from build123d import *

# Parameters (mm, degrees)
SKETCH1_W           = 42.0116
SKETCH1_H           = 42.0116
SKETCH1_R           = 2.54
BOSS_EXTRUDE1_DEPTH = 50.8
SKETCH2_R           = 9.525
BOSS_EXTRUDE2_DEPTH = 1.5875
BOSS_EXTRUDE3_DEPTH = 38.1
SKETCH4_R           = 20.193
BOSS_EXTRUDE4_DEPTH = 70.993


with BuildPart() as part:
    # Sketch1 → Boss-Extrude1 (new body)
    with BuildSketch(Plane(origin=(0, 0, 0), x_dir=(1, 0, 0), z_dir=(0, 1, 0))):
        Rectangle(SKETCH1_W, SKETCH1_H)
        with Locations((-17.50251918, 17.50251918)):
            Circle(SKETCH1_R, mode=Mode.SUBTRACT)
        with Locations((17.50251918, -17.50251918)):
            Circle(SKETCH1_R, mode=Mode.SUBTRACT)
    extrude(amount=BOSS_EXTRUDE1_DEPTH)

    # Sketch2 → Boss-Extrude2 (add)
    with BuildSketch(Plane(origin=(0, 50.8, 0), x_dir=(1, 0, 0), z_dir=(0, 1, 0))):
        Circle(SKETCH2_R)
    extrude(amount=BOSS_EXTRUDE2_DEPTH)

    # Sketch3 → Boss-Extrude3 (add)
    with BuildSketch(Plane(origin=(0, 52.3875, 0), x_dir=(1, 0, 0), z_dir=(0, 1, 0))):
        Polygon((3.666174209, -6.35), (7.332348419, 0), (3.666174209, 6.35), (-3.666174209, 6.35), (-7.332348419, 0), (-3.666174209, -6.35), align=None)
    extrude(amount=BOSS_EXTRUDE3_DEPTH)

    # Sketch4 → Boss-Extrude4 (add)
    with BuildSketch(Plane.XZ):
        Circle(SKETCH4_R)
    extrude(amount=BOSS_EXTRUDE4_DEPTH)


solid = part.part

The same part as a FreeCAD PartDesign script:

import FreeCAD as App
import Part
import Sketcher
from FreeCAD import Vector
Q = App.Units.Quantity

doc = App.newDocument("Part")
body = doc.addObject("PartDesign::Body", "Body")

sketch1 = body.newObject("Sketcher::SketchObject", "Sketch")
sketch1.AttachmentSupport = (doc.getObject("XZ_Plane"), [""])
sketch1.MapMode = "FlatFace"
sketch1.addGeometry(Part.LineSegment(Vector(-21, -21, 0), Vector(-21, 21, 0)), False)
sketch1.addGeometry(Part.LineSegment(Vector(-21, 21, 0), Vector(21, 21, 0)), False)
sketch1.addGeometry(Part.LineSegment(Vector(21, 21, 0), Vector(21, -21, 0)), False)
sketch1.addGeometry(Part.LineSegment(Vector(21, -21, 0), Vector(-21, -21, 0)), False)
sketch1.addGeometry(Part.Circle(Vector(17.5, 17.5, 0), Vector(0, 0, 1), 2.5), False)
sketch1.addGeometry(Part.Circle(Vector(-17.5, -17.5, 0), Vector(0, 0, 1), 2.5), False)
sketch1.addConstraint(Sketcher.Constraint("Coincident", 0, 2, 1, 1))
sketch1.addConstraint(Sketcher.Constraint("Coincident", 1, 2, 2, 1))
sketch1.addConstraint(Sketcher.Constraint("Coincident", 2, 2, 3, 1))
sketch1.addConstraint(Sketcher.Constraint("Coincident", 3, 2, 0, 1))
sketch1.addConstraint(Sketcher.Constraint("Vertical", 0))
sketch1.addConstraint(Sketcher.Constraint("Horizontal", 1))
sketch1.addConstraint(Sketcher.Constraint("Vertical", 2))
sketch1.addConstraint(Sketcher.Constraint("Horizontal", 3))
sketch1.addConstraint(Sketcher.Constraint("Equal", 4, 5))
sketch1.addConstraint(Sketcher.Constraint("Symmetric", 4, 3, 5, 3, -1, 1))
sketch1.addConstraint(Sketcher.Constraint("Symmetric", 0, 2, 2, 2, -1, 1))
sketch1.addConstraint(Sketcher.Constraint("Equal", 3, 0))
sketch1.addConstraint(Sketcher.Constraint("Diameter", 4, Q("0.2 in")))
sketch1.addConstraint(Sketcher.Constraint("DistanceX", 1, 1, 1, 2, Q("1.654 in")))
sketch1.addConstraint(Sketcher.Constraint("DistanceX", -1, 1, 4, 3, Q("17.502519 mm")))
sketch1.addConstraint(Sketcher.Constraint("DistanceY", -1, 1, 4, 3, Q("17.502519 mm")))
pad1 = body.newObject("PartDesign::Pad", "Pad")
pad1.Profile = sketch1
pad1.Length = Q("2 in")
pad1.Reversed = True

sketch2 = body.newObject("Sketcher::SketchObject", "Sketch001")
sketch2.AttachmentSupport = (doc.getObject("XZ_Plane"), [""])
sketch2.MapMode = "FlatFace"
sketch2.AttachmentOffset = App.Placement(Vector(0, 0, -2 * 25.4), App.Rotation())
sketch2.addGeometry(Part.Circle(Vector(0, 0, 0), Vector(0, 0, 1), 10), False)
sketch2.addConstraint(Sketcher.Constraint("Coincident", 0, 3, -1, 1))
sketch2.addConstraint(Sketcher.Constraint("Diameter", 0, Q("0.75 in")))
pad2 = body.newObject("PartDesign::Pad", "Pad001")
pad2.Profile = sketch2
pad2.Length = Q("0.0625 in")
pad2.Reversed = True

sketch3 = body.newObject("Sketcher::SketchObject", "Sketch002")
sketch3.AttachmentSupport = (doc.getObject("XZ_Plane"), [""])
sketch3.MapMode = "FlatFace"
sketch3.AttachmentOffset = App.Placement(Vector(0, 0, -2.0625 * 25.4), App.Rotation())
sketch3.addGeometry(Part.LineSegment(Vector(4, 6, 0), Vector(7, 0, 0)), False)
sketch3.addGeometry(Part.LineSegment(Vector(7, 0, 0), Vector(4, -6, 0)), False)
sketch3.addGeometry(Part.LineSegment(Vector(4, -6, 0), Vector(-4, -6, 0)), False)
sketch3.addGeometry(Part.LineSegment(Vector(-4, -6, 0), Vector(-7, 0, 0)), False)
sketch3.addGeometry(Part.LineSegment(Vector(-7, 0, 0), Vector(-4, 6, 0)), False)
sketch3.addGeometry(Part.LineSegment(Vector(-4, 6, 0), Vector(4, 6, 0)), False)
sketch3.addConstraint(Sketcher.Constraint("Coincident", 0, 2, 1, 1))
sketch3.addConstraint(Sketcher.Constraint("Coincident", 1, 2, 2, 1))
sketch3.addConstraint(Sketcher.Constraint("Coincident", 2, 2, 3, 1))
sketch3.addConstraint(Sketcher.Constraint("Coincident", 3, 2, 4, 1))
sketch3.addConstraint(Sketcher.Constraint("Coincident", 4, 2, 5, 1))
sketch3.addConstraint(Sketcher.Constraint("Coincident", 5, 2, 0, 1))
sketch3.addConstraint(Sketcher.Constraint("Horizontal", 2))
sketch3.addConstraint(Sketcher.Constraint("Horizontal", 5))
sketch3.addConstraint(Sketcher.Constraint("Symmetric", 0, 2, 3, 2, -1, 1))
sketch3.addConstraint(Sketcher.Constraint("Symmetric", 1, 2, 4, 2, -1, 1))
sketch3.addConstraint(Sketcher.Constraint("PointOnObject", 0, 2, -1))
sketch3.addConstraint(Sketcher.Constraint("Parallel", 0, 3))
sketch3.addConstraint(Sketcher.Constraint("Vertical", 2, 2, 4, 2))
sketch3.addConstraint(Sketcher.Constraint("Angle", 0, Q("-60 deg")))
sketch3.addConstraint(Sketcher.Constraint("DistanceY", 2, 2, 4, 2, Q("0.5 in")))
sketch3.addConstraint(Sketcher.Constraint("DistanceX", 2, 2, 2, 1, Q("7.332348 mm")))
pad3 = body.newObject("PartDesign::Pad", "Pad002")
pad3.Profile = sketch3
pad3.Length = Q("1.5 in")
pad3.Reversed = True

sketch4 = body.newObject("Sketcher::SketchObject", "Sketch003")
sketch4.AttachmentSupport = (doc.getObject("XZ_Plane"), [""])
sketch4.MapMode = "FlatFace"
sketch4.addGeometry(Part.Circle(Vector(0, 0, 0), Vector(0, 0, 1), 20), False)
sketch4.addConstraint(Sketcher.Constraint("Coincident", 0, 3, -1, 1))
sketch4.addConstraint(Sketcher.Constraint("Diameter", 0, Q("1.59 in")))
pad4 = body.newObject("PartDesign::Pad", "Pad003")
pad4.Profile = sketch4
pad4.Length = Q("2.795 in")

doc.recompute()
